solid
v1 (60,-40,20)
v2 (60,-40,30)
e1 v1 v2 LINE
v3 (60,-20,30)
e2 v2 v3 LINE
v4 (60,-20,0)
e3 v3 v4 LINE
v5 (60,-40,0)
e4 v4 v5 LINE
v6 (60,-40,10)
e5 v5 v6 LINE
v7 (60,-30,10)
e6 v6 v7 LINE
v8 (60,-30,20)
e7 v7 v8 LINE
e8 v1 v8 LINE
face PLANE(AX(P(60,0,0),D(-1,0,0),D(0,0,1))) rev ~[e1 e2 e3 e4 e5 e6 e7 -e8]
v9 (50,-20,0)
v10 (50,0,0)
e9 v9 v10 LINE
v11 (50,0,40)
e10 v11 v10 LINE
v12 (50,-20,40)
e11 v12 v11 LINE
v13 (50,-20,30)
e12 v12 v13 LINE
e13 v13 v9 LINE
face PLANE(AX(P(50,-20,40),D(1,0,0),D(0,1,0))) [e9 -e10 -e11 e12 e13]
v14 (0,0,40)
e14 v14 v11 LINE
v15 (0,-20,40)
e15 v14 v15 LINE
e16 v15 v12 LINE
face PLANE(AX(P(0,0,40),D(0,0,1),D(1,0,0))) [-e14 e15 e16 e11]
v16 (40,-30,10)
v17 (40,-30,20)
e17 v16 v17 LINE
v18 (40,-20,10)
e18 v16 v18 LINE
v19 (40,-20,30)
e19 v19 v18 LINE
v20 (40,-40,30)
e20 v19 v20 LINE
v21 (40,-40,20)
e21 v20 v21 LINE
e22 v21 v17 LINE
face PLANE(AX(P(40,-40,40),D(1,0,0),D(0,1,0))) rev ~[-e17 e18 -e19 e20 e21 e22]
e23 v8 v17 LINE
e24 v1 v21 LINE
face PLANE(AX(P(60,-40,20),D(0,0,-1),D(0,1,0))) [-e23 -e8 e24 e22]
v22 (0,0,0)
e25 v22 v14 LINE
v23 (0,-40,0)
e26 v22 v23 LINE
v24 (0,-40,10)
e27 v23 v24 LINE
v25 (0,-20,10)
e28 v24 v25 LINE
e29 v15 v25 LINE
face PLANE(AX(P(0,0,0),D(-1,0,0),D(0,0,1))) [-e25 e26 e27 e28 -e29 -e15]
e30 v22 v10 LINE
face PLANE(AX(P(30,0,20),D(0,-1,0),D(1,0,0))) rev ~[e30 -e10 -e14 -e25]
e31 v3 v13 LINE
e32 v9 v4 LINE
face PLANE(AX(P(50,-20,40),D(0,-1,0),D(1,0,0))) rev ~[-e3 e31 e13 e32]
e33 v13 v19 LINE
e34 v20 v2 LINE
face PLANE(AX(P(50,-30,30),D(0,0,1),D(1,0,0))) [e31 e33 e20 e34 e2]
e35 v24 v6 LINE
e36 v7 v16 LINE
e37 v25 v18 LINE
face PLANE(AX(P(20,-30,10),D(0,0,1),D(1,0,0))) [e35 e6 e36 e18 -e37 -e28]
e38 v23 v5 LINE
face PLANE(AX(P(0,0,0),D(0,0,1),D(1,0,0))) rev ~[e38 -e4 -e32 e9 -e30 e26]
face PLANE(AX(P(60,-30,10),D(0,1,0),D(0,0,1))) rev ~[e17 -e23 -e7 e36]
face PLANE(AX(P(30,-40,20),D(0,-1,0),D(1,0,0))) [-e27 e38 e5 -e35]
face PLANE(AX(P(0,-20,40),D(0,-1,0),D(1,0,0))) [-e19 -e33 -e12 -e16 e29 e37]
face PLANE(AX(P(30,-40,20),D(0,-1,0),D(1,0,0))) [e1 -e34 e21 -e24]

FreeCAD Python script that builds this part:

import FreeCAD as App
import Part
import Sketcher
from FreeCAD import Vector
Q = App.Units.Quantity

doc = App.newDocument("Part")
params = doc.addObject("Spreadsheet::Sheet", "Params")
for row, (alias, value) in enumerate([
    ("sketch1_width", "60 mm"),
    ("sketch1_height", "40 mm"),
    ("pad1_length", "40 mm"),
    ("sketch2_width", "10 mm"),
    ("sketch2_height", "20 mm"),
    ("pocket1_length", "40 mm"),
    ("sketch3_width", "40 mm"),
    ("sketch3_height", "20 mm"),
    ("pocket2_length", "30 mm"),
    ("sketch4_width", "20 mm"),
    ("pocket3_length", "10 mm"),
    ("sketch5_width", "10 mm"),
    ("pocket4_length", "20 mm"),
], start=1):
    params.set(f"A{row}", alias)
    params.set(f"B{row}", "=" + value)
    params.setAlias(f"B{row}", alias)

body = doc.addObject("PartDesign::Body", "Body")

# Sketch on XZ plane
sketch1 = doc.addObject("Sketcher::SketchObject", "Sketch")
body.addObject(sketch1)
sketch1.AttachmentSupport = (doc.XZ_Plane, [""])
sketch1.MapMode = "FlatFace"
sketch1.addGeometry([
    Part.LineSegment(Vector(0, 40, 0), Vector(0, 0, 0)),
    Part.LineSegment(Vector(0, 0, 0), Vector(60, 0, 0)),
    Part.LineSegment(Vector(60, 0, 0), Vector(60, 40, 0)),
    Part.LineSegment(Vector(60, 40, 0), Vector(0, 40, 0)),
], False)
sketch1.addConstraint([
    Sketcher.Constraint("Coincident", 0, 2, 1, 1),
    Sketcher.Constraint("Coincident", 1, 2, 2, 1),
    Sketcher.Constraint("Coincident", 2, 2, 3, 1),
    Sketcher.Constraint("Coincident", 3, 2, 0, 1),
    Sketcher.Constraint("Vertical", 0),
    Sketcher.Constraint("Horizontal", 1),
    Sketcher.Constraint("Vertical", 2),
    Sketcher.Constraint("Horizontal", 3),
    Sketcher.Constraint("Coincident", 0, 2, -1, 1),
    Sketcher.Constraint("DistanceX", 1, 1, 1, 2, Q("60 mm")),
    Sketcher.Constraint("DistanceY", 0, 2, 0, 1, Q("40 mm")),
])
sketch1.setExpression("Constraints[9]", "Params.sketch1_width")
sketch1.setExpression("Constraints[10]", "Params.sketch1_height")
pad1 = doc.addObject("PartDesign::Pad", "Pad")
body.addObject(pad1)
pad1.Profile = sketch1
pad1.setExpression("Length", "Params.pad1_length")

# Sketch on XY plane
sketch2 = doc.addObject("Sketcher::SketchObject", "Sketch001")
body.addObject(sketch2)
sketch2.AttachmentSupport = (doc.XY_Plane, [""])
sketch2.MapMode = "FlatFace"
sketch2.AttachmentOffset = App.Placement(Vector(0, 0, 40), App.Rotation())
sketch2.addGeometry([
    Part.LineSegment(Vector(50, 0, 0), Vector(50, -20, 0)),
    Part.LineSegment(Vector(50, -20, 0), Vector(60, -20, 0)),
    Part.LineSegment(Vector(60, -20, 0), Vector(60, 0, 0)),
    Part.LineSegment(Vector(60, 0, 0), Vector(50, 0, 0)),
], False)
sketch2.addConstraint([
    Sketcher.Constraint("Coincident", 0, 2, 1, 1),
    Sketcher.Constraint("Coincident", 1, 2, 2, 1),
    Sketcher.Constraint("Coincident", 2, 2, 3, 1),
    Sketcher.Constraint("Coincident", 3, 2, 0, 1),
    Sketcher.Constraint("Vertical", 0),
    Sketcher.Constraint("Horizontal", 1),
    Sketcher.Constraint("Vertical", 2),
    Sketcher.Constraint("Horizontal", 3),
    Sketcher.Constraint("PointOnObject", 2, 2, -1),
    Sketcher.Constraint("DistanceX", 1, 1, 1, 2, Q("10 mm")),
    Sketcher.Constraint("DistanceY", 0, 2, 0, 1, Q("20 mm")),
    Sketcher.Constraint("DistanceX", -1, 1, 0, 2, Q("50 mm")),
])
sketch2.setExpression("Constraints[9]", "Params.sketch2_width")
sketch2.setExpression("Constraints[10]", "Params.sketch2_height")
pocket1 = doc.addObject("PartDesign::Pocket", "Pocket")
body.addObject(pocket1)
pocket1.Profile = sketch2
pocket1.setExpression("Length", "Params.pocket1_length")

# Sketch on XY plane
sketch3 = doc.addObject("Sketcher::SketchObject", "Sketch002")
body.addObject(sketch3)
sketch3.AttachmentSupport = (doc.XY_Plane, [""])
sketch3.MapMode = "FlatFace"
sketch3.AttachmentOffset = App.Placement(Vector(0, 0, 40), App.Rotation())
sketch3.addGeometry([
    Part.LineSegment(Vector(0, -20, 0), Vector(0, -40, 0)),
    Part.LineSegment(Vector(0, -40, 0), Vector(40, -40, 0)),
    Part.LineSegment(Vector(40, -40, 0), Vector(40, -20, 0)),
    Part.LineSegment(Vector(40, -20, 0), Vector(0, -20, 0)),
], False)
sketch3.addConstraint([
    Sketcher.Constraint("Coincident", 0, 2, 1, 1),
    Sketcher.Constraint("Coincident", 1, 2, 2, 1),
    Sketcher.Constraint("Coincident", 2, 2, 3, 1),
    Sketcher.Constraint("Coincident", 3, 2, 0, 1),
    Sketcher.Constraint("Vertical", 0),
    Sketcher.Constraint("Horizontal", 1),
    Sketcher.Constraint("Vertical", 2),
    Sketcher.Constraint("Horizontal", 3),
    Sketcher.Constraint("PointOnObject", 0, 2, -2),
    Sketcher.Constraint("DistanceX", 1, 1, 1, 2, Q("40 mm")),
    Sketcher.Constraint("DistanceY", 0, 2, 0, 1, Q("20 mm")),
    Sketcher.Constraint("DistanceY", 0, 2, -1, 1, Q("40 mm")),
])
sketch3.setExpression("Constraints[9]", "Params.sketch3_width")
sketch3.setExpression("Constraints[10]", "Params.sketch3_height")
pocket2 = doc.addObject("PartDesign::Pocket", "Pocket001")
body.addObject(pocket2)
pocket2.Profile = sketch3
pocket2.setExpression("Length", "Params.pocket2_length")

# Sketch on XY plane
sketch4 = doc.addObject("Sketcher::SketchObject", "Sketch003")
body.addObject(sketch4)
sketch4.AttachmentSupport = (doc.XY_Plane, [""])
sketch4.MapMode = "FlatFace"
sketch4.AttachmentOffset = App.Placement(Vector(0, 0, 40), App.Rotation())
sketch4.addGeometry([
    Part.LineSegment(Vector(40, -20, 0), Vector(40, -40, 0)),
    Part.LineSegment(Vector(40, -40, 0), Vector(60, -40, 0)),
    Part.LineSegment(Vector(60, -40, 0), Vector(60, -20, 0)),
    Part.LineSegment(Vector(60, -20, 0), Vector(40, -20, 0)),
], False)
sketch4.addConstraint([
    Sketcher.Constraint("Coincident", 0, 2, 1, 1),
    Sketcher.Constraint("Coincident", 1, 2, 2, 1),
    Sketcher.Constraint("Coincident", 2, 2, 3, 1),
    Sketcher.Constraint("Coincident", 3, 2, 0, 1),
    Sketcher.Constraint("Vertical", 0),
    Sketcher.Constraint("Horizontal", 1),
    Sketcher.Constraint("Vertical", 2),
    Sketcher.Constraint("Horizontal", 3),
    Sketcher.Constraint("Equal", 3, 0),
    Sketcher.Constraint("DistanceX", 1, 1, 1, 2, Q("20 mm")),
    Sketcher.Constraint("DistanceX", -1, 1, 0, 2, Q("40 mm")),
    Sketcher.Constraint("DistanceY", 0, 2, -1, 1, Q("40 mm")),
])
sketch4.setExpression("Constraints[9]", "Params.sketch4_width")
pocket3 = doc.addObject("PartDesign::Pocket", "Pocket002")
body.addObject(pocket3)
pocket3.Profile = sketch4
pocket3.setExpression("Length", "Params.pocket3_length")

# Sketch on YZ plane
sketch5 = doc.addObject("Sketcher::SketchObject", "Sketch004")
body.addObject(sketch5)
sketch5.AttachmentSupport = (doc.YZ_Plane, [""])
sketch5.MapMode = "FlatFace"
sketch5.AttachmentOffset = App.Placement(Vector(0, 0, 60), App.Rotation())
sketch5.addGeometry([
    Part.LineSegment(Vector(-40, 20, 0), Vector(-40, 10, 0)),
    Part.LineSegment(Vector(-40, 10, 0), Vector(-30, 10, 0)),
    Part.LineSegment(Vector(-30, 10, 0), Vector(-30, 20, 0)),
    Part.LineSegment(Vector(-30, 20, 0), Vector(-40, 20, 0)),
], False)
sketch5.addConstraint([
    Sketcher.Constraint("Coincident", 0, 2, 1, 1),
    Sketcher.Constraint("Coincident", 1, 2, 2, 1),
    Sketcher.Constraint("Coincident", 2, 2, 3, 1),
    Sketcher.Constraint("Coincident", 3, 2, 0, 1),
    Sketcher.Constraint("Vertical", 0),
    Sketcher.Constraint("Horizontal", 1),
    Sketcher.Constraint("Vertical", 2),
    Sketcher.Constraint("Horizontal", 3),
    Sketcher.Constraint("Equal", 3, 0),
    Sketcher.Constraint("DistanceX", 1, 1, 1, 2, Q("10 mm")),
    Sketcher.Constraint("DistanceX", 0, 2, -1, 1, Q("40 mm")),
    Sketcher.Constraint("DistanceY", -1, 1, 0, 2, Q("10 mm")),
])
sketch5.setExpression("Constraints[9]", "Params.sketch5_width")
pocket4 = doc.addObject("PartDesign::Pocket", "Pocket003")
body.addObject(pocket4)
pocket4.Profile = sketch5
pocket4.setExpression("Length", "Params.pocket4_length")

doc.recompute()
